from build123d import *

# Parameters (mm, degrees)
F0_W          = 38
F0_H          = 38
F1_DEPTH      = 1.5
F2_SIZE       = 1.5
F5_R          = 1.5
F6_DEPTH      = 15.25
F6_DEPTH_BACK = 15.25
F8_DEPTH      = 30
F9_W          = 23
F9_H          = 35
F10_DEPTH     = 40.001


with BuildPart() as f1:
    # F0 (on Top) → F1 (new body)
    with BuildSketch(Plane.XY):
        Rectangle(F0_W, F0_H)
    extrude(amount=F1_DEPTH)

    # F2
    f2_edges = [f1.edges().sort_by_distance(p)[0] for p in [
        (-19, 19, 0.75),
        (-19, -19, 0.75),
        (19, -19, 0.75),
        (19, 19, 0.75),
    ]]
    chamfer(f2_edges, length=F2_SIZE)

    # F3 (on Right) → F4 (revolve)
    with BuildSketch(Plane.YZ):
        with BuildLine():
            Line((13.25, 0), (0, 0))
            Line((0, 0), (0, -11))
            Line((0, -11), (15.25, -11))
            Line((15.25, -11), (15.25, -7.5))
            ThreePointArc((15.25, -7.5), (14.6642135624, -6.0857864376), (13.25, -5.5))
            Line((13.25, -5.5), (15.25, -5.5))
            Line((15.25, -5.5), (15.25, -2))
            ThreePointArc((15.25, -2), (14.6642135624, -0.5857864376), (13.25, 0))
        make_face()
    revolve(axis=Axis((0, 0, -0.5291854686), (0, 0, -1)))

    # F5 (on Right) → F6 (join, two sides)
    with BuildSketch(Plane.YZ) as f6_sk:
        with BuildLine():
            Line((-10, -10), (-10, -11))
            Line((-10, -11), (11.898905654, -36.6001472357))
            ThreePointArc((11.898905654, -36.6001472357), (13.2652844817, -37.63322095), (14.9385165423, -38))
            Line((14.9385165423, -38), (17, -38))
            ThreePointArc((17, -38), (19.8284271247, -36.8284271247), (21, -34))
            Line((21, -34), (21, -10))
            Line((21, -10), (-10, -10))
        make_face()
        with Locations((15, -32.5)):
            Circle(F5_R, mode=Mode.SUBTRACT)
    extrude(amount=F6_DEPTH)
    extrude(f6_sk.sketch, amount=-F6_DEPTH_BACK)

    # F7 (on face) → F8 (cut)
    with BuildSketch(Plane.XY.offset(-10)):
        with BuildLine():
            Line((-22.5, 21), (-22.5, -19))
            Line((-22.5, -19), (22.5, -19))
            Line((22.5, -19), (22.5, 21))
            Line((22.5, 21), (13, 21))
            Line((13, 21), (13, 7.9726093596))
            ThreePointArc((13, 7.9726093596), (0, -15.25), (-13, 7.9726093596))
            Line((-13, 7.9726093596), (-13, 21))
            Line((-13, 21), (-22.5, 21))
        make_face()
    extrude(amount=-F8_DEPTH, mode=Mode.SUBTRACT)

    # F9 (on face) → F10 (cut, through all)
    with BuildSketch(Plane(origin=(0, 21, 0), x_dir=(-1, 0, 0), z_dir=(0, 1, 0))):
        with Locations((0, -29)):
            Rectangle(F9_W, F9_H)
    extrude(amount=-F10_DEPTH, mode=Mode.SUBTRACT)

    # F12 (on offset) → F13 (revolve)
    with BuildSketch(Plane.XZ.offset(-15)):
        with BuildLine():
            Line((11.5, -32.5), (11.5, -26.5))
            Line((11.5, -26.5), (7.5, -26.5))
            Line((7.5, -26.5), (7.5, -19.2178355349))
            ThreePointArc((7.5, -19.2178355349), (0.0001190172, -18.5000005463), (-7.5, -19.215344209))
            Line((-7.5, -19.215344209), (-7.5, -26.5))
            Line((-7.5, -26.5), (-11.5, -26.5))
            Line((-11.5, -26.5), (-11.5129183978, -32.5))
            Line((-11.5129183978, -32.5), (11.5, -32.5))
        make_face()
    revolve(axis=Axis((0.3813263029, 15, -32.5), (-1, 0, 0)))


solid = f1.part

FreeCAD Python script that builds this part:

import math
import FreeCAD as App
import Part
import Sketcher

V = App.Vector
Q = App.Units.Quantity


def edges_at(feature, points):
    """Names of the edges that pass closest to the given points."""
    edges = feature.Shape.Edges
    near = lambda p: min(range(len(edges)), key=lambda i: edges[i].distToShape(Part.Vertex(*p))[0])
    return sorted({f"Edge{near(p) + 1}" for p in points})

doc = App.newDocument("Part")
body = doc.addObject("PartDesign::Body", "Body")

# Sketch on XY plane
sketch1 = body.newObject("Sketcher::SketchObject", "Sketch")
sketch1.AttachmentSupport = (doc.getObject("XY_Plane"), [""])
sketch1.MapMode = "FlatFace"
sketch1.addGeometry(Part.LineSegment(V(-19, 19, 0), V(-19, -19, 0)), False)
sketch1.addGeometry(Part.LineSegment(V(-19, -19, 0), V(19, -19, 0)), False)
sketch1.addGeometry(Part.LineSegment(V(19, -19, 0), V(19, 19, 0)), False)
sketch1.addGeometry(Part.LineSegment(V(19, 19, 0), V(-19, 19, 0)), False)
sketch1.addConstraint(Sketcher.Constraint("Coincident", 0, 2, 1, 1))
sketch1.addConstraint(Sketcher.Constraint("Coincident", 1, 2, 2, 1))
sketch1.addConstraint(Sketcher.Constraint("Coincident", 2, 2, 3, 1))
sketch1.addConstraint(Sketcher.Constraint("Coincident", 3, 2, 0, 1))
sketch1.addConstraint(Sketcher.Constraint("Vertical", 0))
sketch1.addConstraint(Sketcher.Constraint("Horizontal", 1))
sketch1.addConstraint(Sketcher.Constraint("Vertical", 2))
sketch1.addConstraint(Sketcher.Constraint("Horizontal", 3))
sketch1.addConstraint(Sketcher.Constraint("Symmetric", 0, 2, 2, 2, -1, 1))
sketch1.addConstraint(Sketcher.Constraint("Equal", 3, 0))
sketch1.addConstraint(Sketcher.Constraint("DistanceX", 1, 1, 1, 2, Q("38 mm")))
pad1 = body.newObject("PartDesign::Pad", "Pad")
pad1.Profile = sketch1
pad1.Length = 1.5
doc.recompute()

chamfer = body.newObject("PartDesign::Chamfer", "Chamfer")
chamfer.Base = (pad1, edges_at(pad1, [
    (-19, 19, 0.75),
    (-19, -19, 0.75),
    (19, -19, 0.75),
    (19, 19, 0.75),
]))
chamfer.Size = 1.5

# Sketch on YZ plane
sketch2 = body.newObject("Sketcher::SketchObject", "Sketch001")
sketch2.AttachmentSupport = (doc.getObject("YZ_Plane"), [""])
sketch2.MapMode = "FlatFace"
sketch2.addGeometry(Part.LineSegment(V(13.25, 0, 0), V(0, 0, 0)), False)
sketch2.addGeometry(Part.LineSegment(V(0, 0, 0), V(0, -11, 0)), False)
sketch2.addGeometry(Part.LineSegment(V(0, -11, 0), V(15.25, -11, 0)), False)
sketch2.addGeometry(Part.LineSegment(V(15.25, -11, 0), V(15.25, -7.5, 0)), False)
sketch2.addGeometry(Part.ArcOfCircle(Part.Circle(V(13.25, -7.5, 0), V(0, 0, 1), 2), math.radians(0), math.radians(90)), False)
sketch2.addGeometry(Part.LineSegment(V(13.25, -5.5, 0), V(15.25, -5.5, 0)), False)
sketch2.addGeometry(Part.LineSegment(V(15.25, -5.5, 0), V(15.25, -2, 0)), False)
sketch2.addGeometry(Part.ArcOfCircle(Part.Circle(V(13.25, -2, 0), V(0, 0, 1), 2), math.radians(0), math.radians(90)), False)
sketch2.addConstraint(Sketcher.Constraint("Coincident", 0, 2, 1, 1))
sketch2.addConstraint(Sketcher.Constraint("Coincident", 1, 2, 2, 1))
sketch2.addConstraint(Sketcher.Constraint("Coincident", 2, 2, 3, 1))
sketch2.addConstraint(Sketcher.Constraint("Tangent", 3, 2, 4, 1))
sketch2.addConstraint(Sketcher.Constraint("Tangent", 4, 2, 5, 1))
sketch2.addConstraint(Sketcher.Constraint("Coincident", 5, 2, 6, 1))
sketch2.addConstraint(Sketcher.Constraint("Tangent", 6, 2, 7, 1))
sketch2.addConstraint(Sketcher.Constraint("Tangent", 7, 2, 0, 1))
sketch2.addConstraint(Sketcher.Constraint("Horizontal", 0))
sketch2.addConstraint(Sketcher.Constraint("Vertical", 1))
sketch2.addConstraint(Sketcher.Constraint("Horizontal", 2))
sketch2.addConstraint(Sketcher.Constraint("Vertical", 3))
sketch2.addConstraint(Sketcher.Constraint("Horizontal", 5))
sketch2.addConstraint(Sketcher.Constraint("Vertical", 6))
sketch2.addConstraint(Sketcher.Constraint("Coincident", 0, 2, -1, 1))
sketch2.addConstraint(Sketcher.Constraint("Equal", 4, 7))
sketch2.addConstraint(Sketcher.Constraint("Vertical", 4, 3, 7, 3))
sketch2.addConstraint(Sketcher.Constraint("Equal", 3, 6))
sketch2.addConstraint(Sketcher.Constraint("Radius", 4, Q("2 mm")))
sketch2.addConstraint(Sketcher.Constraint("DistanceY", 1, 2, 1, 1, Q("11 mm")))
sketch2.addConstraint(Sketcher.Constraint("DistanceX", 0, 2, 0, 1, Q("13.25 mm")))
revolution = body.newObject("PartDesign::Revolution", "Revolution")
revolution.Profile = sketch2
revolution.ReferenceAxis = (sketch2, ["V_Axis"])
revolution.Angle = 360

# Sketch on YZ plane
sketch3 = body.newObject("Sketcher::SketchObject", "Sketch002")
sketch3.AttachmentSupport = (doc.getObject("YZ_Plane"), [""])
sketch3.MapMode = "FlatFace"
sketch3.addGeometry(Part.LineSegment(V(-10, -10, 0), V(-10, -11, 0)), False)
sketch3.addGeometry(Part.LineSegment(V(-10, -11, 0), V(11.898906, -36.600147, 0)), False)
sketch3.addGeometry(Part.ArcOfCircle(Part.Circle(V(14.938517, -34, 0), V(0, 0, 1), 4), math.radians(-139.455623), math.radians(-90)), False)
sketch3.addGeometry(Part.LineSegment(V(14.938517, -38, 0), V(17, -38, 0)), False)
sketch3.addGeometry(Part.ArcOfCircle(Part.Circle(V(17, -34, 0), V(0, 0, 1), 4), math.radians(-90), math.radians(0)), False)
sketch3.addGeometry(Part.LineSegment(V(21, -34, 0), V(21, -10, 0)), False)
sketch3.addGeometry(Part.LineSegment(V(21, -10, 0), V(-10, -10, 0)), False)
sketch3.addGeometry(Part.Circle(V(15, -32.5, 0), V(0, 0, 1), 1.5), False)
sketch3.addConstraint(Sketcher.Constraint("Coincident", 0, 2, 1, 1))
sketch3.addConstraint(Sketcher.Constraint("Tangent", 1, 2, 2, 1))
sketch3.addConstraint(Sketcher.Constraint("Tangent", 2, 2, 3, 1))
sketch3.addConstraint(Sketcher.Constraint("Tangent", 3, 2, 4, 1))
sketch3.addConstraint(Sketcher.Constraint("Tangent", 4, 2, 5, 1))
sketch3.addConstraint(Sketcher.Constraint("Coincident", 5, 2, 6, 1))
sketch3.addConstraint(Sketcher.Constraint("Coincident", 6, 2, 0, 1))
sketch3.addConstraint(Sketcher.Constraint("Vertical", 0))
sketch3.addConstraint(Sketcher.Constraint("Horizontal", 3))
sketch3.addConstraint(Sketcher.Constraint("Vertical", 5))
sketch3.addConstraint(Sketcher.Constraint("Horizontal", 6))
sketch3.addConstraint(Sketcher.Constraint("Equal", 2, 4))
sketch3.addConstraint(Sketcher.Constraint("Diameter", 7, Q("3 mm")))
sketch3.addConstraint(Sketcher.Constraint("Radius", 2, Q("4 mm")))
sketch3.addConstraint(Sketcher.Constraint("DistanceX", 6, 2, 6, 1, Q("31 mm")))
sketch3.addConstraint(Sketcher.Constraint("DistanceY", 0, 2, 0, 1, Q("1 mm")))
sketch3.addConstraint(Sketcher.Constraint("DistanceY", 5, 1, 5, 2, Q("24 mm")))
sketch3.addConstraint(Sketcher.Constraint("DistanceY", 2, 3, -1, 1, Q("34 mm")))
sketch3.addConstraint(Sketcher.Constraint("DistanceX", -1, 1, 4, 3, Q("17 mm")))
sketch3.addConstraint(Sketcher.Constraint("DistanceX", -1, 1, 7, 3, Q("15 mm")))
sketch3.addConstraint(Sketcher.Constraint("DistanceY", 7, 3, -1, 1, Q("32.5 mm")))
sketch3.addConstraint(Sketcher.Constraint("DistanceX", 3, 1, 3, 2, Q("2.061483 mm")))
pad2 = body.newObject("PartDesign::Pad", "Pad001")
pad2.Profile = sketch3
pad2.Type = "TwoLengths"
pad2.Length = 15.25
pad2.Length2 = 15.25

# Sketch on XY plane
sketch4 = body.newObject("Sketcher::SketchObject", "Sketch003")
sketch4.AttachmentSupport = (doc.getObject("XY_Plane"), [""])
sketch4.MapMode = "FlatFace"
sketch4.AttachmentOffset = App.Placement(V(0, 0, -10), App.Rotation())
sketch4.addGeometry(Part.LineSegment(V(-22.5, 21, 0), V(-22.5, -19, 0)), False)
sketch4.addGeometry(Part.LineSegment(V(-22.5, -19, 0), V(22.5, -19, 0)), False)
sketch4.addGeometry(Part.LineSegment(V(22.5, -19, 0), V(22.5, 21, 0)), False)
sketch4.addGeometry(Part.LineSegment(V(22.5, 21, 0), V(13, 21, 0)), False)
sketch4.addGeometry(Part.LineSegment(V(13, 21, 0), V(13, 7.972609, 0)), False)
sketch4.addGeometry(Part.ArcOfCircle(Part.Circle(V(0, 0, 0), V(0, 0, 1), 15.25), math.radians(148.480141), math.radians(391.519859)), False)
sketch4.addGeometry(Part.LineSegment(V(-13, 7.972609, 0), V(-13, 21, 0)), False)
sketch4.addGeometry(Part.LineSegment(V(-13, 21, 0), V(-22.5, 21, 0)), False)
sketch4.addConstraint(Sketcher.Constraint("Coincident", 0, 2, 1, 1))
sketch4.addConstraint(Sketcher.Constraint("Coincident", 1, 2, 2, 1))
sketch4.addConstraint(Sketcher.Constraint("Coincident", 2, 2, 3, 1))
sketch4.addConstraint(Sketcher.Constraint("Coincident", 3, 2, 4, 1))
sketch4.addConstraint(Sketcher.Constraint("Coincident", 4, 2, 5, 2))
sketch4.addConstraint(Sketcher.Constraint("Coincident", 5, 1, 6, 1))
sketch4.addConstraint(Sketcher.Constraint("Coincident", 6, 2, 7, 1))
sketch4.addConstraint(Sketcher.Constraint("Coincident", 7, 2, 0, 1))
sketch4.addConstraint(Sketcher.Constraint("Vertical", 0))
sketch4.addConstraint(Sketcher.Constraint("Horizontal", 1))
sketch4.addConstraint(Sketcher.Constraint("Vertical", 2))
sketch4.addConstraint(Sketcher.Constraint("Horizontal", 3))
sketch4.addConstraint(Sketcher.Constraint("Vertical", 4))
sketch4.addConstraint(Sketcher.Constraint("Vertical", 6))
sketch4.addConstraint(Sketcher.Constraint("Horizontal", 7))
sketch4.addConstraint(Sketcher.Constraint("Coincident", 5, 3, -1, 1))
sketch4.addConstraint(Sketcher.Constraint("Symmetric", 3, 2, 6, 2, -2))
sketch4.addConstraint(Sketcher.Constraint("Equal", 3, 7))
sketch4.addConstraint(Sketcher.Constraint("DistanceX", 1, 1, 1, 2, Q("45 mm")))
sketch4.addConstraint(Sketcher.Constraint("DistanceY", 0, 2, 0, 1, Q("40 mm")))
sketch4.addConstraint(Sketcher.Constraint("Radius", 5, Q("15.25 mm")))
sketch4.addConstraint(Sketcher.Constraint("DistanceX", 3, 2, 3, 1, Q("9.5 mm")))
sketch4.addConstraint(Sketcher.Constraint("DistanceY", 0, 2, -1, 1, Q("19 mm")))
pocket1 = body.newObject("PartDesign::Pocket", "Pocket")
pocket1.Profile = sketch4
pocket1.Length = 30

# Sketch on XZ plane
sketch5 = body.newObject("Sketcher::SketchObject", "Sketch004")
sketch5.AttachmentSupport = (doc.getObject("XZ_Plane"), [""])
sketch5.MapMode = "FlatFace"
sketch5.AttachmentOffset = App.Placement(V(0, 0, -21), App.Rotation())
sketch5.addGeometry(Part.LineSegment(V(11.5, -11.5, 0), V(11.5, -46.5, 0)), False)
sketch5.addGeometry(Part.LineSegment(V(11.5, -46.5, 0), V(-11.5, -46.5, 0)), False)
sketch5.addGeometry(Part.LineSegment(V(-11.5, -46.5, 0), V(-11.5, -11.5, 0)), False)
sketch5.addGeometry(Part.LineSegment(V(-11.5, -11.5, 0), V(11.5, -11.5, 0)), False)
sketch5.addConstraint(Sketcher.Constraint("Coincident", 0, 2, 1, 1))
sketch5.addConstraint(Sketcher.Constraint("Coincident", 1, 2, 2, 1))
sketch5.addConstraint(Sketcher.Constraint("Coincident", 2, 2, 3, 1))
sketch5.addConstraint(Sketcher.Constraint("Coincident", 3, 2, 0, 1))
sketch5.addConstraint(Sketcher.Constraint("Vertical", 0))
sketch5.addConstraint(Sketcher.Constraint("Horizontal", 1))
sketch5.addConstraint(Sketcher.Constraint("Vertical", 2))
sketch5.addConstraint(Sketcher.Constraint("Horizontal", 3))
sketch5.addConstraint(Sketcher.Constraint("DistanceX", 1, 2, 1, 1, Q("23 mm")))
sketch5.addConstraint(Sketcher.Constraint("DistanceY", 0, 2, 0, 1, Q("35 mm")))
sketch5.addConstraint(Sketcher.Constraint("DistanceX", -1, 1, 0, 2, Q("11.5 mm")))
sketch5.addConstraint(Sketcher.Constraint("DistanceY", 0, 2, -1, 1, Q("46.5 mm")))
pocket2 = body.newObject("PartDesign::Pocket", "Pocket001")
pocket2.Profile = sketch5
pocket2.Type = "ThroughAll"
pocket2.Reversed = True

# Sketch on XZ plane
sketch6 = body.newObject("Sketcher::SketchObject", "Sketch005")
sketch6.AttachmentSupport = (doc.getObject("XZ_Plane"), [""])
sketch6.MapMode = "FlatFace"
sketch6.AttachmentOffset = App.Placement(V(0, 0, -15), App.Rotation())
sketch6.addGeometry(Part.LineSegment(V(11.5, -32.5, 0), V(11.5, -26.5, 0)), False)
sketch6.addGeometry(Part.LineSegment(V(11.5, -26.5, 0), V(7.5, -26.5, 0)), False)
sketch6.addGeometry(Part.LineSegment(V(7.5, -26.5, 0), V(7.5, -19.217836, 0)), False)
sketch6.addGeometry(Part.ArcOfCircle(Part.Circle(V(-0.006459, -58.106717, 0), V(0, 0, 1), 39.606717), math.radians(79.074941), math.radians(100.906027)), False)
sketch6.addGeometry(Part.LineSegment(V(-7.5, -19.215344, 0), V(-7.5, -26.5, 0)), False)
sketch6.addGeometry(Part.LineSegment(V(-7.5, -26.5, 0), V(-11.5, -26.5, 0)), False)
sketch6.addGeometry(Part.LineSegment(V(-11.5, -26.5, 0), V(-11.512918, -32.5, 0)), False)
sketch6.addGeometry(Part.LineSegment(V(-11.512918, -32.5, 0), V(11.5, -32.5, 0)), False)
sketch6.addGeometry(Part.LineSegment(V(11.5, -32.5, 0), V(-11.512918, -32.5, 0)), True)  # axis
sketch6.addConstraint(Sketcher.Constraint("Coincident", 0, 2, 1, 1))
sketch6.addConstraint(Sketcher.Constraint("Coincident", 1, 2, 2, 1))
sketch6.addConstraint(Sketcher.Constraint("Coincident", 2, 2, 3, 1))
sketch6.addConstraint(Sketcher.Constraint("Coincident", 3, 2, 4, 1))
sketch6.addConstraint(Sketcher.Constraint("Coincident", 4, 2, 5, 1))
sketch6.addConstraint(Sketcher.Constraint("Coincident", 5, 2, 6, 1))
sketch6.addConstraint(Sketcher.Constraint("Coincident", 6, 2, 7, 1))
sketch6.addConstraint(Sketcher.Constraint("Coincident", 7, 2, 0, 1))
sketch6.addConstraint(Sketcher.Constraint("Vertical", 0))
sketch6.addConstraint(Sketcher.Constraint("Horizontal", 1))
sketch6.addConstraint(Sketcher.Constraint("Vertical", 2))
sketch6.addConstraint(Sketcher.Constraint("Vertical", 4))
sketch6.addConstraint(Sketcher.Constraint("Horizontal", 5))
sketch6.addConstraint(Sketcher.Constraint("Horizontal", 7))
sketch6.addConstraint(Sketcher.Constraint("Horizontal", 8))
sketch6.addConstraint(Sketcher.Constraint("Coincident", 8, 1, 7, 2))
sketch6.addConstraint(Sketcher.Constraint("Symmetric", 1, 2, 4, 2, -2))
sketch6.addConstraint(Sketcher.Constraint("Equal", 1, 5))
sketch6.addConstraint(Sketcher.Constraint("Equal", 7, 8))
sketch6.addConstraint(Sketcher.Constraint("DistanceX", 1, 2, 1, 1, Q("4 mm")))
sketch6.addConstraint(Sketcher.Constraint("DistanceY", 0, 1, 0, 2, Q("6 mm")))
sketch6.addConstraint(Sketcher.Constraint("DistanceX", 3, 2, 2, 2, Q("15 mm")))
sketch6.addConstraint(Sketcher.Constraint("DistanceY", 0, 2, -1, 1, Q("26.5 mm")))
sketch6.addConstraint(Sketcher.Constraint("Radius", 3, Q("39.606717 mm")))
sketch6.addConstraint(Sketcher.Constraint("DistanceX", 7, 1, 7, 2, Q("23.012918 mm")))
sketch6.addConstraint(Sketcher.Constraint("DistanceY", 2, 1, 2, 2, Q("7.282164 mm")))
sketch6.addConstraint(Sketcher.Constraint("DistanceY", 4, 2, 4, 1, Q("7.284656 mm")))
revolution2 = body.newObject("PartDesign::Revolution", "Revolution001")
revolution2.Profile = sketch6
revolution2.ReferenceAxis = (sketch6, ["Axis0"])
revolution2.Angle = 360

doc.recompute()
